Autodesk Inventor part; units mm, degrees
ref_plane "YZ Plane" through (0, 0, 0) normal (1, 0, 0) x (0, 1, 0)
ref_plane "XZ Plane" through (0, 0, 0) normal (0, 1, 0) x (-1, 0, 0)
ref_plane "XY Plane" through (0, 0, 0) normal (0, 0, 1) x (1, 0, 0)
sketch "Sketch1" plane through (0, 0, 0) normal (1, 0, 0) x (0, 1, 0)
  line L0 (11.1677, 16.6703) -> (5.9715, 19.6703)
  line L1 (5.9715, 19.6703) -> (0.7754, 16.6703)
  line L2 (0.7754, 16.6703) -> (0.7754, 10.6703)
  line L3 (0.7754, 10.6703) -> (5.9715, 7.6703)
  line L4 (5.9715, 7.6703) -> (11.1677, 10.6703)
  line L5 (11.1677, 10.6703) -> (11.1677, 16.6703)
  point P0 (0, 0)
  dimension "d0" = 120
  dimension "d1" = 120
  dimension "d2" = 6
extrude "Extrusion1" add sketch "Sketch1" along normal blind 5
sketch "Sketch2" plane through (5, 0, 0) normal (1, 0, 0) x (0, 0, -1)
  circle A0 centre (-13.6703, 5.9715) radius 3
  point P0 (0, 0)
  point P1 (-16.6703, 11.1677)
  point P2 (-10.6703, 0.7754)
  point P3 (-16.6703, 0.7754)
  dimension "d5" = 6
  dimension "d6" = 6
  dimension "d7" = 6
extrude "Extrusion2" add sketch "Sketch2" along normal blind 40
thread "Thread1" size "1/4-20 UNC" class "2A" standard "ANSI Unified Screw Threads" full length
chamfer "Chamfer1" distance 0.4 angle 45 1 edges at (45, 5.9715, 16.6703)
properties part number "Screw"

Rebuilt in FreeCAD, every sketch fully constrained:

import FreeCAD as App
import Part
import Sketcher

V = App.Vector
Q = App.Units.Quantity


def edges_at(feature, points):
    """Names of the edges that pass closest to the given points."""
    edges = feature.Shape.Edges
    near = lambda p: min(range(len(edges)), key=lambda i: edges[i].distToShape(Part.Vertex(*p))[0])
    return sorted({f"Edge{near(p) + 1}" for p in points})


def add_polygon(sketch, points):
    """Adds a closed chain of lines whose ends are joined by coincident constraints."""
    first, n = sketch.GeometryCount, len(points)
    for a, b in zip(points, points[1:] + points[:1]):
        sketch.addGeometry(Part.LineSegment(App.Vector(*a, 0), App.Vector(*b, 0)), False)
    for i in range(n):
        sketch.addConstraint(Sketcher.Constraint("Coincident", first + i, 2, first + (i + 1) % n, 1))

doc = App.newDocument("Part")
body = doc.addObject("PartDesign::Body", "Body")

# Sketch on YZ plane
sketch1 = doc.addObject("Sketcher::SketchObject", "Sketch")
body.addObject(sketch1)
sketch1.AttachmentSupport = (doc.YZ_Plane, [""])
sketch1.MapMode = "FlatFace"
add_polygon(sketch1, [(11, 11), (11, 17), (6, 20), (1, 17), (1, 11), (6, 8)])  # lines 0-5
sketch1.addConstraint(Sketcher.Constraint("Vertical", 0))
sketch1.addConstraint(Sketcher.Constraint("Vertical", 3))
sketch1.addConstraint(Sketcher.Constraint("Parallel", 1, 4))
sketch1.addConstraint(Sketcher.Constraint("Parallel", 2, 5))
sketch1.addConstraint(Sketcher.Constraint("Horizontal", 0, 2, 2, 2))
sketch1.addConstraint(Sketcher.Constraint("Horizontal", 3, 2, 5, 2))
sketch1.addConstraint(Sketcher.Constraint("Vertical", 1, 2, 4, 2))
sketch1.addConstraint(Sketcher.Constraint("DistanceY", 0, 1, 0, 2, Q("6 mm")))
sketch1.addConstraint(Sketcher.Constraint("Distance", 1, Q("6 mm")))
sketch1.addConstraint(Sketcher.Constraint("Angle", 1, Q("150.0002 deg")))
sketch1.addConstraint(Sketcher.Constraint("DistanceX", -1, 1, 0, 2, Q("11.1677 mm")))
sketch1.addConstraint(Sketcher.Constraint("DistanceY", -1, 1, 0, 2, Q("16.6703 mm")))
pad1 = doc.addObject("PartDesign::Pad", "Pad")
body.addObject(pad1)
pad1.Profile = sketch1
pad1.Length = 5

# Sketch on YZ plane
sketch2 = doc.addObject("Sketcher::SketchObject", "Sketch001")
body.addObject(sketch2)
sketch2.AttachmentSupport = (doc.YZ_Plane, [""])
sketch2.MapMode = "FlatFace"
sketch2.AttachmentOffset = App.Placement(V(0, 0, 5), App.Rotation())
sketch2.addGeometry(Part.Circle(V(6, 13.7, 0), V(0, 0, 1), 3), False)
sketch2.addConstraint(Sketcher.Constraint("Diameter", 0, Q("6 mm")))
sketch2.addConstraint(Sketcher.Constraint("DistanceX", -1, 1, 0, 3, Q("5.9715 mm")))
sketch2.addConstraint(Sketcher.Constraint("DistanceY", -1, 1, 0, 3, Q("13.6703 mm")))
pad2 = doc.addObject("PartDesign::Pad", "Pad001")
body.addObject(pad2)
pad2.Profile = sketch2
pad2.Length = 40
doc.recompute()

chamfer = doc.addObject("PartDesign::Chamfer", "Chamfer")
body.addObject(chamfer)
chamfer.Base = (pad2, edges_at(pad2, [(45, 5.971, 16.67)]))
chamfer.Size = 0.4

doc.recompute()
